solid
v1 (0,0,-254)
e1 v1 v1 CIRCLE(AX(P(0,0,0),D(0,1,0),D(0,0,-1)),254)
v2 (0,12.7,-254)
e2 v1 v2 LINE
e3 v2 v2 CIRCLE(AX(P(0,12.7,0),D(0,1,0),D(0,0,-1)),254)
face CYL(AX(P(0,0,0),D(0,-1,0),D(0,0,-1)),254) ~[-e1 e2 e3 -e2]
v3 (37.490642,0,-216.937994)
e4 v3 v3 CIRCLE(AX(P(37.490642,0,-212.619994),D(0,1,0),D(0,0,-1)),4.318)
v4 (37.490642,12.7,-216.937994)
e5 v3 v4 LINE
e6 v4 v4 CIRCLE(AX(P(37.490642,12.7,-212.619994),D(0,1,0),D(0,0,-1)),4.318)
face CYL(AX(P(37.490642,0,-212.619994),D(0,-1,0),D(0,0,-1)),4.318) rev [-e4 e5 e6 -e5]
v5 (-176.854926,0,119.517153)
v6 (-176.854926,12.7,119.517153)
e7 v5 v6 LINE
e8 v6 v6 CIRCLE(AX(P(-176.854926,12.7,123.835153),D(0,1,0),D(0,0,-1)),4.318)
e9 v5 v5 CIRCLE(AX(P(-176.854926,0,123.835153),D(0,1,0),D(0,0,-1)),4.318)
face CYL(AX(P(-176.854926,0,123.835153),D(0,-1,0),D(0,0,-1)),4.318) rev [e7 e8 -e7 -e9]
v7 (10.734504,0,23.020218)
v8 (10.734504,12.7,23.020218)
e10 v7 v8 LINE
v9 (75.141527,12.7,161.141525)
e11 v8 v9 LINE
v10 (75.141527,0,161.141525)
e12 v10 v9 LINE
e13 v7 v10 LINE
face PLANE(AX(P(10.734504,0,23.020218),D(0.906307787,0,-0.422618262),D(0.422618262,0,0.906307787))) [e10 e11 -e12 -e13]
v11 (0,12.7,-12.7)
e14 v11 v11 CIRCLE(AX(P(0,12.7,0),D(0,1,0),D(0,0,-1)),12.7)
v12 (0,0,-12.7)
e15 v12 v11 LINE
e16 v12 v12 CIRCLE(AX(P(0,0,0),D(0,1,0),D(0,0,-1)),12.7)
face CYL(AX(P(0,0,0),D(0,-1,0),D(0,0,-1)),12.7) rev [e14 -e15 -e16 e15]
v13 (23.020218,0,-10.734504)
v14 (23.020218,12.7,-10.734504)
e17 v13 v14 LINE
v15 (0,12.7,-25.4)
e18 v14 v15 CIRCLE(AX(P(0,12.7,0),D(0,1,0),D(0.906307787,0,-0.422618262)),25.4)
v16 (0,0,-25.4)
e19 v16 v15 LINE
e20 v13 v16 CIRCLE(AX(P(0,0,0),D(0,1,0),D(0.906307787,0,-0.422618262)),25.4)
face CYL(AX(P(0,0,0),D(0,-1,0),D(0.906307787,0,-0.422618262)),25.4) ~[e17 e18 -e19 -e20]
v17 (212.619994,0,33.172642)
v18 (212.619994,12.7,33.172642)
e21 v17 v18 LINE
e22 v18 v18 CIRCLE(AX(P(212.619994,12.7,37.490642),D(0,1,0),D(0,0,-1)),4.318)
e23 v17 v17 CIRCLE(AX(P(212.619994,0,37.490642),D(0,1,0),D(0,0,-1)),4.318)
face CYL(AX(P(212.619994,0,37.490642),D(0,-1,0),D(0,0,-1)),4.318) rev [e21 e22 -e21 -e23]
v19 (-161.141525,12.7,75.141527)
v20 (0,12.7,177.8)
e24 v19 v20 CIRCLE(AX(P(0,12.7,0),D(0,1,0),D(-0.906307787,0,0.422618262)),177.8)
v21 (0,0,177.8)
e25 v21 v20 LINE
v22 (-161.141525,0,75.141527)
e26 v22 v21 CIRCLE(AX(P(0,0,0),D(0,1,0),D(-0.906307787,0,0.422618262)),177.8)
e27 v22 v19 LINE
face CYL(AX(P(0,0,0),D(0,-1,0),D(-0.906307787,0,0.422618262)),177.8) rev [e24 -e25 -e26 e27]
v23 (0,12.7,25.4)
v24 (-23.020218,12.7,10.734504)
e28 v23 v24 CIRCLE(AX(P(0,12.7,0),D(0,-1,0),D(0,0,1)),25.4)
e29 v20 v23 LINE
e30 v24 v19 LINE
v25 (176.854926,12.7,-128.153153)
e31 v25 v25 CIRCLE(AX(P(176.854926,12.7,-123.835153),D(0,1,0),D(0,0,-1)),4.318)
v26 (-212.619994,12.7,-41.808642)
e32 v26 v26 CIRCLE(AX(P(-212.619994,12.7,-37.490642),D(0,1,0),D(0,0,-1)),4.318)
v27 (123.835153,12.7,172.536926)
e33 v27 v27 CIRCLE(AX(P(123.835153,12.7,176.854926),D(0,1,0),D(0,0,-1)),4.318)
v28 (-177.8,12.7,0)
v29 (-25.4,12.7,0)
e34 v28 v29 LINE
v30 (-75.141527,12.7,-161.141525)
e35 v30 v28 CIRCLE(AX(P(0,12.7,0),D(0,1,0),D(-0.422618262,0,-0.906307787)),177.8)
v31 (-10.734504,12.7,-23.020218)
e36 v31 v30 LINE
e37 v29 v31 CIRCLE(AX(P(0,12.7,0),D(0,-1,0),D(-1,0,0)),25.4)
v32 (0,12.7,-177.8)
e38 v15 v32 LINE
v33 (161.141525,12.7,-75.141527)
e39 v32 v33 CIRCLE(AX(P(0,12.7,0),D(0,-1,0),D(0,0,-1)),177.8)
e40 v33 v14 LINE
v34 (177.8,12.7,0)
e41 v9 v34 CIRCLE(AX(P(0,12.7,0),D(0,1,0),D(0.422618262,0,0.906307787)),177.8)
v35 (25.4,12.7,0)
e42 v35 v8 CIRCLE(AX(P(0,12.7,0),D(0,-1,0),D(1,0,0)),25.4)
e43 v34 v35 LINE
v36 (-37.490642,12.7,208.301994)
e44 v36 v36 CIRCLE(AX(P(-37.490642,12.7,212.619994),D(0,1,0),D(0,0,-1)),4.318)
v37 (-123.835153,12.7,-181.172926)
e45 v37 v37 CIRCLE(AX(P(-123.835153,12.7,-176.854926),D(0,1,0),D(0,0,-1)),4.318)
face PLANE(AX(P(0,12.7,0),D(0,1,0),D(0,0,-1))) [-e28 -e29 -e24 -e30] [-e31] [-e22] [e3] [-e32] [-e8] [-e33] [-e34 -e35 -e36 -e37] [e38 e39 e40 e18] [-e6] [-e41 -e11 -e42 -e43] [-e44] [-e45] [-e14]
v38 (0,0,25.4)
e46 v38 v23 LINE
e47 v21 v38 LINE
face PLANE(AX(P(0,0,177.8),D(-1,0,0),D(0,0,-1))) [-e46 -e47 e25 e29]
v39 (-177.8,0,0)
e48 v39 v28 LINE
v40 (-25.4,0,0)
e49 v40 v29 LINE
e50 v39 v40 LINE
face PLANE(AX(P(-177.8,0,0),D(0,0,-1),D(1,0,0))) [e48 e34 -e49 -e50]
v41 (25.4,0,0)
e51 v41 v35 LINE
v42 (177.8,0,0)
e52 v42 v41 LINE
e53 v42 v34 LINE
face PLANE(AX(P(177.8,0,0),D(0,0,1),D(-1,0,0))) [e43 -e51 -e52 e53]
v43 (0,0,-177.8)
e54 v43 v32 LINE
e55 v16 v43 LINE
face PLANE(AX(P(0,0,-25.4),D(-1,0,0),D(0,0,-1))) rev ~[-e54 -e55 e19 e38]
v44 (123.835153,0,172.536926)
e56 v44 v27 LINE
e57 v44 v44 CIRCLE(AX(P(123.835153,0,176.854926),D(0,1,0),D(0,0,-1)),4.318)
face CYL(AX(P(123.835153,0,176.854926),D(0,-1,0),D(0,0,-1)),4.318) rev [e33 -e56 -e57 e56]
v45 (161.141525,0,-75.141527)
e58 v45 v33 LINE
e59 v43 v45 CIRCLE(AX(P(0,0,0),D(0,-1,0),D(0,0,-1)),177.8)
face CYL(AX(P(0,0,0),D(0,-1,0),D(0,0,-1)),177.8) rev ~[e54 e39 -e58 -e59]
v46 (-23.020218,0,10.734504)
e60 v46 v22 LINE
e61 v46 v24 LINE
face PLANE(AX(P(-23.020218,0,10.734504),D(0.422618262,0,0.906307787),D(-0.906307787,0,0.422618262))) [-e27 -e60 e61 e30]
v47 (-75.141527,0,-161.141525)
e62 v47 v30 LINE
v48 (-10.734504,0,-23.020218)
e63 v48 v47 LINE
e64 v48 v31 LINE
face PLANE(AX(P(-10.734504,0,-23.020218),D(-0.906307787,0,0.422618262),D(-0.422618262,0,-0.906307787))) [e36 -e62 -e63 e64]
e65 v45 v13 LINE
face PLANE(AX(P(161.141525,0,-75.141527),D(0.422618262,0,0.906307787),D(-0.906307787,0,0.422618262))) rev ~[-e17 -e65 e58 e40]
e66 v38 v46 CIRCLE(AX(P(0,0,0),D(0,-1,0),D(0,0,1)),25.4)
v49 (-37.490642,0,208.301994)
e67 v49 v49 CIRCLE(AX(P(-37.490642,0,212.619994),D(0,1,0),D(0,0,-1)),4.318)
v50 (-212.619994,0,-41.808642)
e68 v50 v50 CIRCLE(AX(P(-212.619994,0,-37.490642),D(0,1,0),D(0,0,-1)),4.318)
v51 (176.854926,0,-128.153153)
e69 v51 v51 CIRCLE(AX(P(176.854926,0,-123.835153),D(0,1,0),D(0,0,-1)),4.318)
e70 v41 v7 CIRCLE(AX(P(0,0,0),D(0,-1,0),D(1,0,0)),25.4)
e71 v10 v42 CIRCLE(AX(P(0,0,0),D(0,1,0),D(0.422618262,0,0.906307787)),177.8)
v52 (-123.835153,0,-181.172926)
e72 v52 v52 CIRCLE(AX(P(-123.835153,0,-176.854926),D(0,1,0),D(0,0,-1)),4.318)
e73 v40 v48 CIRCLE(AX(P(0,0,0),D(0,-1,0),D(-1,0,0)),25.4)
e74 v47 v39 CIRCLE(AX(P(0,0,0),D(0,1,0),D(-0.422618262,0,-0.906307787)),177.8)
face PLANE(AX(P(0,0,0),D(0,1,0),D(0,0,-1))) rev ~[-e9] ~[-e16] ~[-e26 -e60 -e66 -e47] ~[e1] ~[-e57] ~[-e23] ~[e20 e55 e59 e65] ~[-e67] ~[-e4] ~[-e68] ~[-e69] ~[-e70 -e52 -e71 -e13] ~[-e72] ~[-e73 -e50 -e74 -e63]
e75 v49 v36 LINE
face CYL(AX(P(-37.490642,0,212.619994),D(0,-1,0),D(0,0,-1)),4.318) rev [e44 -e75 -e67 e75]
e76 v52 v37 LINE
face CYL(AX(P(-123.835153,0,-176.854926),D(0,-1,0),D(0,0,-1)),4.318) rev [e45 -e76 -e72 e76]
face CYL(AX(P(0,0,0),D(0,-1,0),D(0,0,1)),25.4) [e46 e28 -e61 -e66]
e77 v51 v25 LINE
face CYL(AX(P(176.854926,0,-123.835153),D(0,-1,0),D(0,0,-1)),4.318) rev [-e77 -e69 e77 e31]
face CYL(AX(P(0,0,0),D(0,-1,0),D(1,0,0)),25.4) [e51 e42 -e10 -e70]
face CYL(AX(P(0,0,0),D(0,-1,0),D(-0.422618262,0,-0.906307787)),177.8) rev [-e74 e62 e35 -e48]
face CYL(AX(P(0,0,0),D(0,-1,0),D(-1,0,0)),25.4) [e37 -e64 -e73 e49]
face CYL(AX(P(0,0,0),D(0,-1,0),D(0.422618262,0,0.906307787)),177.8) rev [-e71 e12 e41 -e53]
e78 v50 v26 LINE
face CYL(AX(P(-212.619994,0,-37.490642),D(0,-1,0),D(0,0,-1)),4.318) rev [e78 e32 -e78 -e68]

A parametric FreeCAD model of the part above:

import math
import FreeCAD as App
import Part
import Sketcher
Q = App.Units.Quantity

doc = App.newDocument("Part")
params = doc.addObject("Spreadsheet::Sheet", "Params")
for row, (alias, value) in enumerate([
    ("sketch1_diameter", "20 in"),
    ("sketch1_diameter2", "1 in"),
    ("sketch1_radius", "1 in"),
    ("sketch1_radius2", "7 in"),
    ("sketch1_diameter3", "0.34 in"),
    ("pad1_length", "0.5 in"),
], start=1):
    params.set(f"A{row}", alias)
    params.set(f"B{row}", "=" + value)
    params.setAlias(f"B{row}", alias)

body = doc.addObject("PartDesign::Body", "Body")

# Sketch on XZ plane
sketch1 = body.newObject("Sketcher::SketchObject", "Sketch")
sketch1.AttachmentSupport = (doc.getObject("XZ_Plane"), [""])
sketch1.MapMode = "FlatFace"
sketch1.addGeometry([
    Part.Circle(App.Vector(0, 0, 0), App.Vector(0, 0, 1), 254),  # 0
    Part.Circle(App.Vector(123.8, 176.9, 0), App.Vector(0, 0, 1), 4.3),  # 1
    Part.Circle(App.Vector(212.6, 37.5, 0), App.Vector(0, 0, 1), 4.3),  # 2
    Part.LineSegment(App.Vector(75.1, 161.1, 0), App.Vector(10.7, 23, 0)),  # 3
    Part.ArcOfCircle(Part.Circle(App.Vector(0, 0, 0), App.Vector(0, 0, 1), 25.4), math.radians(0), math.radians(65)),  # 4
    Part.LineSegment(App.Vector(25.4, 0, 0), App.Vector(177.8, 0, 0)),  # 5
    Part.ArcOfCircle(Part.Circle(App.Vector(0, 0, 0), App.Vector(0, 0, 1), 177.8), math.radians(0), math.radians(65)),  # 6
    Part.Circle(App.Vector(0, 0, 0), App.Vector(0, 0, 1), 12.7),  # 7
    Part.Circle(App.Vector(176.9, -123.8, 0), App.Vector(0, 0, 1), 4.3),  # 8
    Part.ArcOfCircle(Part.Circle(App.Vector(0, 0, 0), App.Vector(0, 0, 1), 25.4), math.radians(-90), math.radians(-25)),  # 9
    Part.LineSegment(App.Vector(0, -25.4, 0), App.Vector(0, -177.8, 0)),  # 10
    Part.ArcOfCircle(Part.Circle(App.Vector(0, 0, 0), App.Vector(0, 0, 1), 177.8), math.radians(-90), math.radians(-25)),  # 11
    Part.LineSegment(App.Vector(161.1, -75.1, 0), App.Vector(23, -10.7, 0)),  # 12
    Part.Circle(App.Vector(37.5, -212.6, 0), App.Vector(0, 0, 1), 4.3),  # 13
    Part.Circle(App.Vector(-37.5, 212.6, 0), App.Vector(0, 0, 1), 4.3),  # 14
    Part.LineSegment(App.Vector(-161.1, 75.1, 0), App.Vector(-23, 10.7, 0)),  # 15
    Part.ArcOfCircle(Part.Circle(App.Vector(0, 0, 0), App.Vector(0, 0, 1), 25.4), math.radians(90), math.radians(155)),  # 16
    Part.LineSegment(App.Vector(0, 25.4, 0), App.Vector(0, 177.8, 0)),  # 17
    Part.ArcOfCircle(Part.Circle(App.Vector(0, 0, 0), App.Vector(0, 0, 1), 177.8), math.radians(90), math.radians(155)),  # 18
    Part.Circle(App.Vector(-176.9, 123.8, 0), App.Vector(0, 0, 1), 4.3),  # 19
    Part.LineSegment(App.Vector(-75.1, -161.1, 0), App.Vector(-10.7, -23, 0)),  # 20
    Part.ArcOfCircle(Part.Circle(App.Vector(0, 0, 0), App.Vector(0, 0, 1), 25.4), math.radians(180), math.radians(245)),  # 21
    Part.LineSegment(App.Vector(-25.4, 0, 0), App.Vector(-177.8, 0, 0)),  # 22
    Part.ArcOfCircle(Part.Circle(App.Vector(0, 0, 0), App.Vector(0, 0, 1), 177.8), math.radians(180), math.radians(245)),  # 23
    Part.Circle(App.Vector(-212.6, -37.5, 0), App.Vector(0, 0, 1), 4.3),  # 24
    Part.Circle(App.Vector(-123.8, -176.9, 0), App.Vector(0, 0, 1), 4.3),  # 25
], False)
sketch1.addConstraint([
    Sketcher.Constraint("Coincident", 3, 2, 4, 2),
    Sketcher.Constraint("Coincident", 4, 1, 5, 1),
    Sketcher.Constraint("Coincident", 5, 2, 6, 1),
    Sketcher.Constraint("Coincident", 6, 2, 3, 1),
    Sketcher.Constraint("Coincident", 9, 1, 10, 1),
    Sketcher.Constraint("Coincident", 10, 2, 11, 1),
    Sketcher.Constraint("Coincident", 11, 2, 12, 1),
    Sketcher.Constraint("Coincident", 12, 2, 9, 2),
    Sketcher.Constraint("Coincident", 15, 2, 16, 2),
    Sketcher.Constraint("Coincident", 16, 1, 17, 1),
    Sketcher.Constraint("Coincident", 17, 2, 18, 1),
    Sketcher.Constraint("Coincident", 18, 2, 15, 1),
    Sketcher.Constraint("Coincident", 20, 2, 21, 2),
    Sketcher.Constraint("Coincident", 21, 1, 22, 1),
    Sketcher.Constraint("Coincident", 22, 2, 23, 1),
    Sketcher.Constraint("Coincident", 23, 2, 20, 1),
    Sketcher.Constraint("Horizontal", 5),
    Sketcher.Constraint("Vertical", 10),
    Sketcher.Constraint("Vertical", 17),
    Sketcher.Constraint("Horizontal", 22),
    Sketcher.Constraint("Coincident", 0, 3, -1, 1),
    Sketcher.Constraint("Coincident", 4, 3, -1, 1),
    Sketcher.Constraint("Coincident", 6, 3, -1, 1),
    Sketcher.Constraint("Coincident", 7, 3, -1, 1),
    Sketcher.Constraint("Coincident", 9, 3, -1, 1),
    Sketcher.Constraint("Coincident", 11, 3, -1, 1),
    Sketcher.Constraint("Coincident", 16, 3, -1, 1),
    Sketcher.Constraint("Coincident", 18, 3, -1, 1),
    Sketcher.Constraint("Coincident", 21, 3, -1, 1),
    Sketcher.Constraint("Coincident", 23, 3, -1, 1),
    Sketcher.Constraint("Equal", 1, 2),
    Sketcher.Constraint("Equal", 2, 8),
    Sketcher.Constraint("Equal", 4, 9),
    Sketcher.Constraint("Equal", 6, 11),
    Sketcher.Constraint("Equal", 8, 13),
    Sketcher.Constraint("Equal", 13, 14),
    Sketcher.Constraint("Equal", 9, 16),
    Sketcher.Constraint("Equal", 11, 18),
    Sketcher.Constraint("Equal", 14, 19),
    Sketcher.Constraint("Equal", 16, 21),
    Sketcher.Constraint("Equal", 18, 23),
    Sketcher.Constraint("Equal", 19, 24),
    Sketcher.Constraint("Equal", 24, 25),
    Sketcher.Constraint("Symmetric", 13, 3, 14, 3, -1, 1),
    Sketcher.Constraint("Symmetric", 8, 3, 19, 3, -1, 1),
    Sketcher.Constraint("Symmetric", 2, 3, 24, 3, -1, 1),
    Sketcher.Constraint("Symmetric", 1, 3, 25, 3, -1, 1),
    Sketcher.Constraint("PointOnObject", 4, 1, -1),
    Sketcher.Constraint("PointOnObject", 9, 1, -2),
    Sketcher.Constraint("PointOnObject", 16, 1, -2),
    Sketcher.Constraint("PointOnObject", 21, 1, -1),
    Sketcher.Constraint("Perpendicular", 3, 12),
    Sketcher.Constraint("Parallel", 12, 15),
    Sketcher.Constraint("Perpendicular", 15, 20),
    Sketcher.Constraint("Diameter", 0, Q("20 in")),
    Sketcher.Constraint("Diameter", 7, Q("1 in")),
    Sketcher.Constraint("Radius", 4, Q("1 in")),
    Sketcher.Constraint("Radius", 6, Q("7 in")),
    Sketcher.Constraint("Diameter", 1, Q("0.34 in")),
    Sketcher.Constraint("Angle", 3, Q("-115 deg")),
    Sketcher.Constraint("DistanceY", 6, 2, 1, 3, 15.713402),
    Sketcher.Constraint("DistanceX", 11, 2, 8, 3, 15.713402),
    Sketcher.Constraint("DistanceX", 19, 3, 18, 2, 15.713402),
    Sketcher.Constraint("DistanceY", 25, 3, 23, 2, 15.713402),
    Sketcher.Constraint("DistanceY", -1, 1, 2, 3, 37.490642),
    Sketcher.Constraint("DistanceX", -1, 1, 13, 3, 37.490642),
    Sketcher.Constraint("DistanceX", 1, 3, 2, 3, 88.784841),
    Sketcher.Constraint("DistanceY", 13, 3, 8, 3, 88.784841),
    Sketcher.Constraint("DistanceX", 14, 3, 6, 2, 112.632168),
    Sketcher.Constraint("DistanceY", 6, 2, 14, 3, 51.478469),
    Sketcher.Constraint("DistanceX", 11, 2, 2, 3, 51.478469),
    Sketcher.Constraint("DistanceY", 11, 2, 2, 3, 112.632168),
])
sketch1.setExpression("Constraints[54]", "Params.sketch1_diameter")
sketch1.setExpression("Constraints[55]", "Params.sketch1_diameter2")
sketch1.setExpression("Constraints[56]", "Params.sketch1_radius")
sketch1.setExpression("Constraints[57]", "Params.sketch1_radius2")
sketch1.setExpression("Constraints[58]", "Params.sketch1_diameter3")
pad1 = body.newObject("PartDesign::Pad", "Pad")
pad1.Profile = sketch1
pad1.setExpression("Length", "Params.pad1_length")
pad1.Reversed = True

doc.recompute()
